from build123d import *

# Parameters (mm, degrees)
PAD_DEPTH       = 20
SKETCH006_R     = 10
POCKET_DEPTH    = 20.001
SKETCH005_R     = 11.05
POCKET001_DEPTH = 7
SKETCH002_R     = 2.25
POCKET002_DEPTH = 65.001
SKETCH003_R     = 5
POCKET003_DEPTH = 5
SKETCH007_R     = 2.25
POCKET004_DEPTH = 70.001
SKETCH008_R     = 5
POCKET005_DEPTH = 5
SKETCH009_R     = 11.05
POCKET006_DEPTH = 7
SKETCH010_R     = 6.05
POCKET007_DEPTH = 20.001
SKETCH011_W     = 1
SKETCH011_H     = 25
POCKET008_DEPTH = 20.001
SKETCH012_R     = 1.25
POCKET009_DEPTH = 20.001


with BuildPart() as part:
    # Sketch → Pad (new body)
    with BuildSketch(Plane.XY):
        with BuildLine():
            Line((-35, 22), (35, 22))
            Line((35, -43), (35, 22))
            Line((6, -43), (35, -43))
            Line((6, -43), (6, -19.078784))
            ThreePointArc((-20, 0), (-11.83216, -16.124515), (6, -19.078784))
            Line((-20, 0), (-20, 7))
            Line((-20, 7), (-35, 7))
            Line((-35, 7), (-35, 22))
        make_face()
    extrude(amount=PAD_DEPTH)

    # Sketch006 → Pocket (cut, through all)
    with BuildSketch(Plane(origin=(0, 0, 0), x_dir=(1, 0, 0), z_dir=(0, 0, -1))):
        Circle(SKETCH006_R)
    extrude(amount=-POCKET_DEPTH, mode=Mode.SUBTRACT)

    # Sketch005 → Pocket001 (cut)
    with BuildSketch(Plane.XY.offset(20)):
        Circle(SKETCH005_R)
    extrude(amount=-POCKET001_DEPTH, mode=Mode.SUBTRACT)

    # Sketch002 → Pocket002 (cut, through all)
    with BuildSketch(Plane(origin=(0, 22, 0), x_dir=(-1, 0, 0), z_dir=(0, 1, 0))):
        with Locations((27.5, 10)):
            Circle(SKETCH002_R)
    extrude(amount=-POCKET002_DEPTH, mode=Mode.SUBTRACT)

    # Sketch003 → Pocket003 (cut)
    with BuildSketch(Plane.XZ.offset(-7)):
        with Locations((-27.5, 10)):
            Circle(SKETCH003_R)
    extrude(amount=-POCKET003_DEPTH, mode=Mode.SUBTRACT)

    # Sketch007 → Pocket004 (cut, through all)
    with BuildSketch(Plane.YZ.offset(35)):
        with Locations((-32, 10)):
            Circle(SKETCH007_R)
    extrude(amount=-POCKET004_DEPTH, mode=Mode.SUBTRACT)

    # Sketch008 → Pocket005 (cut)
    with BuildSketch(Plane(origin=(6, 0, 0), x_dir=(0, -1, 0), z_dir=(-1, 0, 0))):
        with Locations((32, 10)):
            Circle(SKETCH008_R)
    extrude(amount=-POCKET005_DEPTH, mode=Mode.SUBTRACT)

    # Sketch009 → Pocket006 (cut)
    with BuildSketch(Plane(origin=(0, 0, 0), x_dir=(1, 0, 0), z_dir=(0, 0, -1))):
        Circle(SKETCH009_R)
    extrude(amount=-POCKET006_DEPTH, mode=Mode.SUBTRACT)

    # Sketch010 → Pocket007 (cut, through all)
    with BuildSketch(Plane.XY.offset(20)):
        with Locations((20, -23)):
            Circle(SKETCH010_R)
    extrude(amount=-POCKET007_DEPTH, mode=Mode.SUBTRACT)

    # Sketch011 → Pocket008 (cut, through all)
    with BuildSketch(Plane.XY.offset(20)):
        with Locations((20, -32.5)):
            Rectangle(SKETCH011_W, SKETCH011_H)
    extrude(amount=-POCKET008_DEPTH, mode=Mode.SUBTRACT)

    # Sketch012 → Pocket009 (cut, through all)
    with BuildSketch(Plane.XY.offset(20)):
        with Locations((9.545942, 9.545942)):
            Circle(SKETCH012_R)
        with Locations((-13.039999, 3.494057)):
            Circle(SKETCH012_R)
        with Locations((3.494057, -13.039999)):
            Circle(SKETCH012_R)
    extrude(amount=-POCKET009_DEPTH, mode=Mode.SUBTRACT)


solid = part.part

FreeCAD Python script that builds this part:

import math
import FreeCAD as App
import Part
import Sketcher

V = App.Vector

doc = App.newDocument("Part")
body = doc.addObject("PartDesign::Body", "Body")

# Sketch on XY plane
sketch1 = body.newObject("Sketcher::SketchObject", "Sketch")
sketch1.AttachmentSupport = (doc.getObject("XY_Plane"), [""])
sketch1.MapMode = "FlatFace"
sketch1.addGeometry([
    Part.LineSegment(V(35, 22, 0), V(-35, 22, 0)),  # 0
    Part.LineSegment(V(-35, 22, 0), V(-35, 7, 0)),  # 1
    Part.LineSegment(V(-35, 7, 0), V(-20, 7, 0)),  # 2
    Part.LineSegment(V(-20, 7, 0), V(-20, 0, 0)),  # 3
    Part.ArcOfCircle(Part.Circle(V(0, 0, 0), V(0, 0, 1), 20), math.radians(-180), math.radians(-73)),  # 4
    Part.LineSegment(V(6, -19, 0), V(6, -43, 0)),  # 5
    Part.LineSegment(V(6, -43, 0), V(35, -43, 0)),  # 6
    Part.LineSegment(V(35, -43, 0), V(35, 22, 0)),  # 7
], False)
sketch1.addConstraint([
    Sketcher.Constraint("Coincident", 0, 2, 1, 1),
    Sketcher.Constraint("Coincident", 1, 2, 2, 1),
    Sketcher.Constraint("Coincident", 2, 2, 3, 1),
    Sketcher.Constraint("Tangent", 3, 2, 4, 1),
    Sketcher.Constraint("Coincident", 4, 2, 5, 1),
    Sketcher.Constraint("Coincident", 5, 2, 6, 1),
    Sketcher.Constraint("Coincident", 6, 2, 7, 1),
    Sketcher.Constraint("Coincident", 7, 2, 0, 1),
    Sketcher.Constraint("Horizontal", 0),
    Sketcher.Constraint("Vertical", 1),
    Sketcher.Constraint("Horizontal", 2),
    Sketcher.Constraint("Vertical", 3),
    Sketcher.Constraint("Vertical", 5),
    Sketcher.Constraint("Horizontal", 6),
    Sketcher.Constraint("Vertical", 7),
    Sketcher.Constraint("Coincident", 4, 3, -1, 1),
    Sketcher.Constraint("Equal", 2, 1),
    Sketcher.Constraint("Radius", 4, 20.0),
    Sketcher.Constraint("DistanceX", 0, 2, 0, 1, 70.0),
    Sketcher.Constraint("DistanceX", 2, 1, 2, 2, 15.0),
    Sketcher.Constraint("DistanceX", 6, 1, 6, 2, 29.0),
    Sketcher.Constraint("DistanceY", 3, 2, 3, 1, 7.0),
    Sketcher.Constraint("DistanceY", 7, 1, 7, 2, 65.0),
])
pad1 = body.newObject("PartDesign::Pad", "Pad")
pad1.Profile = sketch1
pad1.Length = 20

# Sketch on XY plane
sketch2 = body.newObject("Sketcher::SketchObject", "Sketch001")
sketch2.AttachmentSupport = (doc.getObject("XY_Plane"), [""])
sketch2.MapMode = "FlatFace"
sketch2.addGeometry(Part.Circle(V(0, 0, 0), V(0, 0, 1), 10), False)
sketch2.addConstraint([
    Sketcher.Constraint("Coincident", 0, 3, -1, 1),
    Sketcher.Constraint("Diameter", 0, 20.0),
])
pocket1 = body.newObject("PartDesign::Pocket", "Pocket")
pocket1.Profile = sketch2
pocket1.Type = "ThroughAll"
pocket1.Reversed = True

# Sketch on XY plane
sketch3 = body.newObject("Sketcher::SketchObject", "Sketch002")
sketch3.AttachmentSupport = (doc.getObject("XY_Plane"), [""])
sketch3.MapMode = "FlatFace"
sketch3.AttachmentOffset = App.Placement(V(0, 0, 20), App.Rotation())
sketch3.addGeometry(Part.Circle(V(0, 0, 0), V(0, 0, 1), 11), False)
sketch3.addConstraint([
    Sketcher.Constraint("Coincident", 0, 3, -1, 1),
    Sketcher.Constraint("Diameter", 0, 22.1),
])
pocket2 = body.newObject("PartDesign::Pocket", "Pocket001")
pocket2.Profile = sketch3
pocket2.Length = 7

# Sketch on XZ plane
sketch4 = body.newObject("Sketcher::SketchObject", "Sketch003")
sketch4.AttachmentSupport = (doc.getObject("XZ_Plane"), [""])
sketch4.MapMode = "FlatFace"
sketch4.AttachmentOffset = App.Placement(V(0, 0, -22), App.Rotation())
sketch4.addGeometry(Part.Circle(V(-27.5, 10, 0), V(0, 0, 1), 2.2), False)
sketch4.addConstraint([
    Sketcher.Constraint("Diameter", 0, 4.5),
    Sketcher.Constraint("DistanceY", -1, 1, 0, 3, 10.0),
    Sketcher.Constraint("DistanceX", 0, 3, -1, 1, 27.5),
])
pocket3 = body.newObject("PartDesign::Pocket", "Pocket002")
pocket3.Profile = sketch4
pocket3.Type = "ThroughAll"
pocket3.Reversed = True

# Sketch on XZ plane
sketch5 = body.newObject("Sketcher::SketchObject", "Sketch004")
sketch5.AttachmentSupport = (doc.getObject("XZ_Plane"), [""])
sketch5.MapMode = "FlatFace"
sketch5.AttachmentOffset = App.Placement(V(0, 0, -7), App.Rotation())
sketch5.addGeometry(Part.Circle(V(-28, 10, 0), V(0, 0, 1), 5), False)
sketch5.addConstraint([
    Sketcher.Constraint("Diameter", 0, 10.0),
    Sketcher.Constraint("DistanceY", -1, 1, 0, 3, 10.0),
    Sketcher.Constraint("DistanceX", 0, 3, -1, 1, 27.5),
])
pocket4 = body.newObject("PartDesign::Pocket", "Pocket003")
pocket4.Profile = sketch5
pocket4.Length = 5

# Sketch on YZ plane
sketch6 = body.newObject("Sketcher::SketchObject", "Sketch005")
sketch6.AttachmentSupport = (doc.getObject("YZ_Plane"), [""])
sketch6.MapMode = "FlatFace"
sketch6.AttachmentOffset = App.Placement(V(0, 0, 35), App.Rotation())
sketch6.addGeometry(Part.Circle(V(-32, 10, 0), V(0, 0, 1), 2.2), False)
sketch6.addConstraint([
    Sketcher.Constraint("Diameter", 0, 4.5),
    Sketcher.Constraint("DistanceX", 0, 3, -1, 1, 32.0),
    Sketcher.Constraint("DistanceY", -1, 1, 0, 3, 10.0),
])
pocket5 = body.newObject("PartDesign::Pocket", "Pocket004")
pocket5.Profile = sketch6
pocket5.Type = "ThroughAll"

# Sketch on YZ plane
sketch7 = body.newObject("Sketcher::SketchObject", "Sketch006")
sketch7.AttachmentSupport = (doc.getObject("YZ_Plane"), [""])
sketch7.MapMode = "FlatFace"
sketch7.AttachmentOffset = App.Placement(V(0, 0, 6), App.Rotation())
sketch7.addGeometry(Part.Circle(V(-32, 10, 0), V(0, 0, 1), 5), False)
sketch7.addConstraint([
    Sketcher.Constraint("Diameter", 0, 10.0),
    Sketcher.Constraint("DistanceX", 0, 3, -1, 1, 32.0),
    Sketcher.Constraint("DistanceY", -1, 1, 0, 3, 10.0),
])
pocket6 = body.newObject("PartDesign::Pocket", "Pocket005")
pocket6.Profile = sketch7
pocket6.Length = 5
pocket6.Reversed = True

# Sketch on XY plane
sketch8 = body.newObject("Sketcher::SketchObject", "Sketch007")
sketch8.AttachmentSupport = (doc.getObject("XY_Plane"), [""])
sketch8.MapMode = "FlatFace"
sketch8.addGeometry(Part.Circle(V(0, 0, 0), V(0, 0, 1), 11), False)
sketch8.addConstraint([
    Sketcher.Constraint("Coincident", 0, 3, -1, 1),
    Sketcher.Constraint("Diameter", 0, 22.1),
])
pocket7 = body.newObject("PartDesign::Pocket", "Pocket006")
pocket7.Profile = sketch8
pocket7.Length = 7
pocket7.Reversed = True

# Sketch on XY plane
sketch9 = body.newObject("Sketcher::SketchObject", "Sketch008")
sketch9.AttachmentSupport = (doc.getObject("XY_Plane"), [""])
sketch9.MapMode = "FlatFace"
sketch9.AttachmentOffset = App.Placement(V(0, 0, 20), App.Rotation())
sketch9.addGeometry(Part.Circle(V(20, -23, 0), V(0, 0, 1), 6), False)
sketch9.addConstraint([
    Sketcher.Constraint("Diameter", 0, 12.1),
    Sketcher.Constraint("DistanceX", -1, 1, 0, 3, 20.0),
    Sketcher.Constraint("DistanceY", 0, 3, -1, 1, 23.0),
])
pocket8 = body.newObject("PartDesign::Pocket", "Pocket007")
pocket8.Profile = sketch9
pocket8.Type = "ThroughAll"

# Sketch on XY plane
sketch10 = body.newObject("Sketcher::SketchObject", "Sketch009")
sketch10.AttachmentSupport = (doc.getObject("XY_Plane"), [""])
sketch10.MapMode = "FlatFace"
sketch10.AttachmentOffset = App.Placement(V(0, 0, 20), App.Rotation())
sketch10.addGeometry([
    Part.LineSegment(V(19.5, -20, 0), V(19.5, -45, 0)),
    Part.LineSegment(V(19.5, -45, 0), V(20.5, -45, 0)),
    Part.LineSegment(V(20.5, -45, 0), V(20.5, -20, 0)),
    Part.LineSegment(V(20.5, -20, 0), V(19.5, -20, 0)),
], False)
sketch10.addConstraint([
    Sketcher.Constraint("Coincident", 0, 2, 1, 1),
    Sketcher.Constraint("Coincident", 1, 2, 2, 1),
    Sketcher.Constraint("Coincident", 2, 2, 3, 1),
    Sketcher.Constraint("Coincident", 3, 2, 0, 1),
    Sketcher.Constraint("Vertical", 0),
    Sketcher.Constraint("Horizontal", 1),
    Sketcher.Constraint("Vertical", 2),
    Sketcher.Constraint("Horizontal", 3),
    Sketcher.Constraint("DistanceX", 1, 1, 1, 2, 1.0),
    Sketcher.Constraint("DistanceY", 0, 2, 0, 1, 25.0),
    Sketcher.Constraint("DistanceY", 0, 2, -1, 1, 45.0),
    Sketcher.Constraint("DistanceX", -1, 1, 0, 2, 19.5),
])
pocket9 = body.newObject("PartDesign::Pocket", "Pocket008")
pocket9.Profile = sketch10
pocket9.Type = "ThroughAll"

# Sketch on XY plane
sketch11 = body.newObject("Sketcher::SketchObject", "Sketch010")
sketch11.AttachmentSupport = (doc.getObject("XY_Plane"), [""])
sketch11.MapMode = "FlatFace"
sketch11.AttachmentOffset = App.Placement(V(0, 0, 20), App.Rotation())
sketch11.addGeometry([
    Part.Circle(V(9.5, 9.5, 0), V(0, 0, 1), 1.2),
    Part.Circle(V(-13, 3.5, 0), V(0, 0, 1), 1.2),
    Part.Circle(V(3.5, -13, 0), V(0, 0, 1), 1.2),
], False)
sketch11.addConstraint([
    Sketcher.Constraint("Equal", 0, 1),
    Sketcher.Constraint("Equal", 1, 2),
    Sketcher.Constraint("Diameter", 0, 2.5),
    Sketcher.Constraint("DistanceX", 1, 3, -1, 1, 13.039999),
    Sketcher.Constraint("DistanceY", 2, 3, -1, 1, 13.039999),
    Sketcher.Constraint("DistanceX", 1, 3, 0, 3, 22.585941),
    Sketcher.Constraint("DistanceY", 2, 3, 0, 3, 22.585941),
    Sketcher.Constraint("DistanceY", -1, 1, 1, 3, 3.494057),
    Sketcher.Constraint("DistanceX", -1, 1, 2, 3, 3.494057),
])
pocket10 = body.newObject("PartDesign::Pocket", "Pocket009")
pocket10.Profile = sketch11
pocket10.Type = "ThroughAll"

doc.recompute()
